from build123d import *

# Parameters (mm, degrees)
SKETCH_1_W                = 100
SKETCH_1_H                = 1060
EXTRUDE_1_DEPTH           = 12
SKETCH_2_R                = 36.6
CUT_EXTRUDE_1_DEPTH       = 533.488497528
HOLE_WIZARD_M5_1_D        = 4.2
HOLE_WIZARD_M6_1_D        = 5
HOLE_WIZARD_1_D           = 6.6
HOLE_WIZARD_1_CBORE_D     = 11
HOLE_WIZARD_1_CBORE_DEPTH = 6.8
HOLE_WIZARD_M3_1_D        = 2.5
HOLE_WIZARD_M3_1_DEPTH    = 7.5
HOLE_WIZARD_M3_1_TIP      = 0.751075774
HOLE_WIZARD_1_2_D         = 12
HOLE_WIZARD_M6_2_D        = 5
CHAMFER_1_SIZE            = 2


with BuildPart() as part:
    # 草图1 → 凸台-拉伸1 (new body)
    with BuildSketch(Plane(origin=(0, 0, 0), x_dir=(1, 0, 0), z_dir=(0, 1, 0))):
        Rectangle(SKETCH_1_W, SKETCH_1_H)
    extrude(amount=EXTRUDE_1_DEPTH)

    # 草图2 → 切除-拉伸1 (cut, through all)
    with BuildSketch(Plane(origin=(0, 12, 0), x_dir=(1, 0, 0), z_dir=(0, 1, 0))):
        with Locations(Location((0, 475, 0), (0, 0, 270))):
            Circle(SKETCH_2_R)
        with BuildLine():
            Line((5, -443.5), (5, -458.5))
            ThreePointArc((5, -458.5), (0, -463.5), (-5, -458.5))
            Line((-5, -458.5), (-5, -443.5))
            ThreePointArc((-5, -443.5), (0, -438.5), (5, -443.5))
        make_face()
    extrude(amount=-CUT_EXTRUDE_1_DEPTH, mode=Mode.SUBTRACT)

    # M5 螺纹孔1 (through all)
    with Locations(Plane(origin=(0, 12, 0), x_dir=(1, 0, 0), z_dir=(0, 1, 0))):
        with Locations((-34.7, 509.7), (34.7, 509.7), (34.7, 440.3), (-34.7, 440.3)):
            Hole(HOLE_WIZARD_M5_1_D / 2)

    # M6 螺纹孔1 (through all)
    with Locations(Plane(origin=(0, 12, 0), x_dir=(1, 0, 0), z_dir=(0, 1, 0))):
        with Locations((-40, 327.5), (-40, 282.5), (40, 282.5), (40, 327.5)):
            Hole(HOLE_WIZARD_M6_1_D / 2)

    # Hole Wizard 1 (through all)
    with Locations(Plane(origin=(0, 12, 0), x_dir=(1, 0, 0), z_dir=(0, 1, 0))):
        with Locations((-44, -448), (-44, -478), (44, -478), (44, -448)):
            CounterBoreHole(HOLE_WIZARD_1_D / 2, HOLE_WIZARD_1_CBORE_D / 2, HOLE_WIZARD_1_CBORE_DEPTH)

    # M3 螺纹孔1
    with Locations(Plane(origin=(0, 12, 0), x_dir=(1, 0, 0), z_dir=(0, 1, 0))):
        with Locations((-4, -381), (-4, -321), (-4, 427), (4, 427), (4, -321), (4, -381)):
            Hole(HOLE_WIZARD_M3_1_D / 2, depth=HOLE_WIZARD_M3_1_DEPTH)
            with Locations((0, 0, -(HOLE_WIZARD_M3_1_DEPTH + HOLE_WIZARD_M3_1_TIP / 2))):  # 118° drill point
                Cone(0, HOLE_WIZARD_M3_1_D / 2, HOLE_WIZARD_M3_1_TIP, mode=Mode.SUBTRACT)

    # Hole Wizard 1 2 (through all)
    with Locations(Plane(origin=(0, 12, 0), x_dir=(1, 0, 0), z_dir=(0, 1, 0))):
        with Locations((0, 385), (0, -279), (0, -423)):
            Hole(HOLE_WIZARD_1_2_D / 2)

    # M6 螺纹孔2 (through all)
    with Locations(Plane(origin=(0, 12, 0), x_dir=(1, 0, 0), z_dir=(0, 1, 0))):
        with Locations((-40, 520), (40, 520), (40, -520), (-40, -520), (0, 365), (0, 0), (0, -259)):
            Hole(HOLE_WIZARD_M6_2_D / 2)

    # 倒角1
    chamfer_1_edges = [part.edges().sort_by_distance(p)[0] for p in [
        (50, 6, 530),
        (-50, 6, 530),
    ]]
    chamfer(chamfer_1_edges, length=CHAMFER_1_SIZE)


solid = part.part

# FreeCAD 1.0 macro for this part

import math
import FreeCAD as App
import Part
import Sketcher

V = App.Vector
Q = App.Units.Quantity


def edges_at(feature, points):
    """Names of the edges that pass closest to the given points."""
    edges = feature.Shape.Edges
    near = lambda p: min(range(len(edges)), key=lambda i: edges[i].distToShape(Part.Vertex(*p))[0])
    return sorted({f"Edge{near(p) + 1}" for p in points})

doc = App.newDocument("Part")
body = doc.addObject("PartDesign::Body", "Body")

# Sketch on XZ plane
sketch1 = doc.addObject("Sketcher::SketchObject", "Sketch")
body.addObject(sketch1)
sketch1.AttachmentSupport = (doc.XZ_Plane, [""])
sketch1.MapMode = "FlatFace"
sketch1.addGeometry([
    Part.LineSegment(V(-50, -530, 0), V(-50, 530, 0)),
    Part.LineSegment(V(-50, 530, 0), V(50, 530, 0)),
    Part.LineSegment(V(50, 530, 0), V(50, -530, 0)),
    Part.LineSegment(V(50, -530, 0), V(-50, -530, 0)),
], False)
sketch1.addConstraint([
    Sketcher.Constraint("Coincident", 0, 2, 1, 1),
    Sketcher.Constraint("Coincident", 1, 2, 2, 1),
    Sketcher.Constraint("Coincident", 2, 2, 3, 1),
    Sketcher.Constraint("Coincident", 3, 2, 0, 1),
    Sketcher.Constraint("Vertical", 0),
    Sketcher.Constraint("Horizontal", 1),
    Sketcher.Constraint("Vertical", 2),
    Sketcher.Constraint("Horizontal", 3),
    Sketcher.Constraint("Symmetric", 0, 2, 2, 2, -1, 1),
    Sketcher.Constraint("DistanceX", 1, 1, 1, 2, Q("100 mm")),
    Sketcher.Constraint("DistanceY", 0, 1, 0, 2, Q("1060 mm")),
])
pad1 = doc.addObject("PartDesign::Pad", "Pad")
body.addObject(pad1)
pad1.Profile = sketch1
pad1.Length = 12
pad1.Reversed = True

# Sketch on XZ plane
sketch2 = doc.addObject("Sketcher::SketchObject", "Sketch001")
body.addObject(sketch2)
sketch2.AttachmentSupport = (doc.XZ_Plane, [""])
sketch2.MapMode = "FlatFace"
sketch2.AttachmentOffset = App.Placement(V(0, 0, -12), App.Rotation())
sketch2.addGeometry([
    Part.Circle(V(0, -475, 0), V(0, 0, 1), 37),  # 0
    Part.LineSegment(V(5, 458, 0), V(5, 444, 0)),  # 1
    Part.ArcOfCircle(Part.Circle(V(0, 444, 0), V(0, 0, 1), 5), math.radians(180), math.radians(360)),  # 2
    Part.LineSegment(V(-5, 444, 0), V(-5, 458, 0)),  # 3
    Part.ArcOfCircle(Part.Circle(V(0, 458, 0), V(0, 0, 1), 5), math.radians(0), math.radians(180)),  # 4
], False)
sketch2.addConstraint([
    Sketcher.Constraint("Tangent", 1, 2, 2, 2),
    Sketcher.Constraint("Tangent", 2, 1, 3, 1),
    Sketcher.Constraint("Tangent", 3, 2, 4, 2),
    Sketcher.Constraint("Tangent", 4, 1, 1, 1),
    Sketcher.Constraint("Vertical", 1),
    Sketcher.Constraint("Vertical", 3),
    Sketcher.Constraint("PointOnObject", 0, 3, -2),
    Sketcher.Constraint("PointOnObject", 2, 3, -2),
    Sketcher.Constraint("Radius", 2, Q("5 mm")),
    Sketcher.Constraint("Diameter", 0, Q("73.2 mm")),
    Sketcher.Constraint("DistanceY", 1, 2, 1, 1, Q("15 mm")),
    Sketcher.Constraint("DistanceY", 0, 3, -1, 1, Q("475 mm")),
    Sketcher.Constraint("DistanceY", -1, 1, 2, 3, Q("443.5 mm")),
])
pocket1 = doc.addObject("PartDesign::Pocket", "Pocket")
body.addObject(pocket1)
pocket1.Profile = sketch2
pocket1.Type = "ThroughAll"
pocket1.Reversed = True

# Sketch on XZ plane
sketch3 = doc.addObject("Sketcher::SketchObject", "Sketch002")
body.addObject(sketch3)
sketch3.AttachmentSupport = (doc.XZ_Plane, [""])
sketch3.MapMode = "FlatFace"
sketch3.AttachmentOffset = App.Placement(V(0, 0, -12), App.Rotation())
sketch3.addGeometry([
    Part.Circle(V(-34.7, -509.7, 0), V(0, 0, 1), 2.1),
    Part.Circle(V(34.7, -509.7, 0), V(0, 0, 1), 2.1),
    Part.Circle(V(34.7, -440.3, 0), V(0, 0, 1), 2.1),
    Part.Circle(V(-34.7, -440.3, 0), V(0, 0, 1), 2.1),
], False)
sketch3.addConstraint([
    Sketcher.Constraint("Equal", 0, 1),
    Sketcher.Constraint("Equal", 1, 2),
    Sketcher.Constraint("Equal", 2, 3),
    Sketcher.Constraint("Symmetric", 0, 3, 1, 3, -2),
    Sketcher.Constraint("Symmetric", 2, 3, 3, 3, -2),
    Sketcher.Constraint("Vertical", 1, 3, 2, 3),
    Sketcher.Constraint("Diameter", 0, Q("4.2 mm")),
    Sketcher.Constraint("DistanceX", 0, 3, -1, 1, Q("34.7 mm")),
    Sketcher.Constraint("DistanceY", 0, 3, -1, 1, Q("509.7 mm")),
    Sketcher.Constraint("DistanceY", 2, 3, -1, 1, Q("440.3 mm")),
])
doc.recompute()
hole = doc.addObject("PartDesign::Hole", "Hole")
body.addObject(hole)
hole.Profile = sketch3
hole.ThreadType = "None"
hole.Diameter = 4.2
hole.DepthType = "ThroughAll"
hole.Reversed = True

# Sketch on XZ plane
sketch4 = doc.addObject("Sketcher::SketchObject", "Sketch003")
body.addObject(sketch4)
sketch4.AttachmentSupport = (doc.XZ_Plane, [""])
sketch4.MapMode = "FlatFace"
sketch4.AttachmentOffset = App.Placement(V(0, 0, -12), App.Rotation())
sketch4.addGeometry([
    Part.Circle(V(-40, -327.5, 0), V(0, 0, 1), 2.5),
    Part.Circle(V(-40, -282.5, 0), V(0, 0, 1), 2.5),
    Part.Circle(V(40, -282.5, 0), V(0, 0, 1), 2.5),
    Part.Circle(V(40, -327.5, 0), V(0, 0, 1), 2.5),
], False)
sketch4.addConstraint([
    Sketcher.Constraint("Equal", 0, 1),
    Sketcher.Constraint("Equal", 1, 2),
    Sketcher.Constraint("Equal", 2, 3),
    Sketcher.Constraint("Symmetric", 1, 3, 2, 3, -2),
    Sketcher.Constraint("Symmetric", 0, 3, 3, 3, -2),
    Sketcher.Constraint("Vertical", 0, 3, 1, 3),
    Sketcher.Constraint("Diameter", 0, Q("5 mm")),
    Sketcher.Constraint("DistanceX", 0, 3, -1, 1, Q("40 mm")),
    Sketcher.Constraint("DistanceY", 0, 3, 1, 3, Q("45 mm")),
    Sketcher.Constraint("DistanceY", 0, 3, -1, 1, Q("327.5 mm")),
])
doc.recompute()
hole2 = doc.addObject("PartDesign::Hole", "Hole001")
body.addObject(hole2)
hole2.Profile = sketch4
hole2.ThreadType = "None"
hole2.Diameter = 5
hole2.DepthType = "ThroughAll"
hole2.Reversed = True

# Sketch on XZ plane
sketch5 = doc.addObject("Sketcher::SketchObject", "Sketch004")
body.addObject(sketch5)
sketch5.AttachmentSupport = (doc.XZ_Plane, [""])
sketch5.MapMode = "FlatFace"
sketch5.AttachmentOffset = App.Placement(V(0, 0, -12), App.Rotation())
sketch5.addGeometry([
    Part.Circle(V(-44, 448, 0), V(0, 0, 1), 3.3),
    Part.Circle(V(-44, 478, 0), V(0, 0, 1), 3.3),
    Part.Circle(V(44, 478, 0), V(0, 0, 1), 3.3),
    Part.Circle(V(44, 448, 0), V(0, 0, 1), 3.3),
], False)
sketch5.addConstraint([
    Sketcher.Constraint("Equal", 0, 1),
    Sketcher.Constraint("Equal", 1, 2),
    Sketcher.Constraint("Equal", 2, 3),
    Sketcher.Constraint("Symmetric", 1, 3, 2, 3, -2),
    Sketcher.Constraint("Symmetric", 0, 3, 3, 3, -2),
    Sketcher.Constraint("Vertical", 0, 3, 1, 3),
    Sketcher.Constraint("Diameter", 0, Q("6.6 mm")),
    Sketcher.Constraint("DistanceX", 0, 3, -1, 1, Q("44 mm")),
    Sketcher.Constraint("DistanceY", -1, 1, 0, 3, Q("448 mm")),
    Sketcher.Constraint("DistanceY", -1, 1, 1, 3, Q("478 mm")),
])
doc.recompute()
hole3 = doc.addObject("PartDesign::Hole", "Hole002")
body.addObject(hole3)
hole3.Profile = sketch5
hole3.ThreadType = "None"
hole3.Diameter = 6.6
hole3.DepthType = "ThroughAll"
hole3.HoleCutType = "Counterbore"
hole3.HoleCutDiameter = 11
hole3.HoleCutDepth = 6.8
hole3.Reversed = True

# Sketch on XZ plane
sketch6 = doc.addObject("Sketcher::SketchObject", "Sketch005")
body.addObject(sketch6)
sketch6.AttachmentSupport = (doc.XZ_Plane, [""])
sketch6.MapMode = "FlatFace"
sketch6.AttachmentOffset = App.Placement(V(0, 0, -12), App.Rotation())
sketch6.addGeometry([
    Part.Circle(V(-4, 381, 0), V(0, 0, 1), 1.2),  # 0
    Part.Circle(V(-4, 321, 0), V(0, 0, 1), 1.2),  # 1
    Part.Circle(V(-4, -427, 0), V(0, 0, 1), 1.2),  # 2
    Part.Circle(V(4, -427, 0), V(0, 0, 1), 1.2),  # 3
    Part.Circle(V(4, 321, 0), V(0, 0, 1), 1.2),  # 4
    Part.Circle(V(4, 381, 0), V(0, 0, 1), 1.2),  # 5
], False)
sketch6.addConstraint([
    Sketcher.Constraint("Equal", 0, 1),
    Sketcher.Constraint("Equal", 1, 2),
    Sketcher.Constraint("Equal", 2, 3),
    Sketcher.Constraint("Equal", 3, 4),
    Sketcher.Constraint("Equal", 4, 5),
    Sketcher.Constraint("Symmetric", 2, 3, 3, 3, -2),
    Sketcher.Constraint("Symmetric", 1, 3, 4, 3, -2),
    Sketcher.Constraint("Symmetric", 0, 3, 5, 3, -2),
    Sketcher.Constraint("Vertical", 0, 3, 1, 3),
    Sketcher.Constraint("Vertical", 1, 3, 2, 3),
    Sketcher.Constraint("Diameter", 0, Q("2.5 mm")),
    Sketcher.Constraint("DistanceX", 0, 3, -1, 1, Q("4 mm")),
    Sketcher.Constraint("DistanceY", -1, 1, 0, 3, Q("381 mm")),
    Sketcher.Constraint("DistanceY", -1, 1, 1, 3, Q("321 mm")),
    Sketcher.Constraint("DistanceY", 2, 3, -1, 1, Q("427 mm")),
])
doc.recompute()
hole4 = doc.addObject("PartDesign::Hole", "Hole003")
body.addObject(hole4)
hole4.Profile = sketch6
hole4.ThreadType = "None"
hole4.Diameter = 2.5
hole4.DepthType = "Dimension"
hole4.Depth = 7.5
hole4.DrillPoint = "Angled"
hole4.DrillPointAngle = 118
hole4.Reversed = True

# Sketch on XZ plane
sketch7 = doc.addObject("Sketcher::SketchObject", "Sketch006")
body.addObject(sketch7)
sketch7.AttachmentSupport = (doc.XZ_Plane, [""])
sketch7.MapMode = "FlatFace"
sketch7.AttachmentOffset = App.Placement(V(0, 0, -12), App.Rotation())
sketch7.addGeometry([
    Part.Circle(V(0, -385, 0), V(0, 0, 1), 6),
    Part.Circle(V(0, 279, 0), V(0, 0, 1), 6),
    Part.Circle(V(0, 423, 0), V(0, 0, 1), 6),
], False)
sketch7.addConstraint([
    Sketcher.Constraint("Equal", 0, 1),
    Sketcher.Constraint("Equal", 1, 2),
    Sketcher.Constraint("PointOnObject", 0, 3, -2),
    Sketcher.Constraint("PointOnObject", 1, 3, -2),
    Sketcher.Constraint("PointOnObject", 2, 3, -2),
    Sketcher.Constraint("Diameter", 0, Q("12 mm")),
    Sketcher.Constraint("DistanceY", 0, 3, -1, 1, Q("385 mm")),
    Sketcher.Constraint("DistanceY", -1, 1, 1, 3, Q("279 mm")),
    Sketcher.Constraint("DistanceY", -1, 1, 2, 3, Q("423 mm")),
])
doc.recompute()
hole5 = doc.addObject("PartDesign::Hole", "Hole004")
body.addObject(hole5)
hole5.Profile = sketch7
hole5.ThreadType = "None"
hole5.Diameter = 12
hole5.DepthType = "ThroughAll"
hole5.Reversed = True

# Sketch on XZ plane
sketch8 = doc.addObject("Sketcher::SketchObject", "Sketch007")
body.addObject(sketch8)
sketch8.AttachmentSupport = (doc.XZ_Plane, [""])
sketch8.MapMode = "FlatFace"
sketch8.AttachmentOffset = App.Placement(V(0, 0, -12), App.Rotation())
sketch8.addGeometry([
    Part.Circle(V(-40, -520, 0), V(0, 0, 1), 2.5),  # 0
    Part.Circle(V(40, -520, 0), V(0, 0, 1), 2.5),  # 1
    Part.Circle(V(40, 520, 0), V(0, 0, 1), 2.5),  # 2
    Part.Circle(V(-40, 520, 0), V(0, 0, 1), 2.5),  # 3
    Part.Circle(V(0, -365, 0), V(0, 0, 1), 2.5),  # 4
    Part.Circle(V(0, 0, 0), V(0, 0, 1), 2.5),  # 5
    Part.Circle(V(0, 259, 0), V(0, 0, 1), 2.5),  # 6
], False)
sketch8.addConstraint([
    Sketcher.Constraint("Coincident", 5, 3, -1, 1),
    Sketcher.Constraint("Equal", 0, 1),
    Sketcher.Constraint("Equal", 1, 2),
    Sketcher.Constraint("Equal", 2, 3),
    Sketcher.Constraint("Equal", 3, 4),
    Sketcher.Constraint("Equal", 4, 5),
    Sketcher.Constraint("Equal", 5, 6),
    Sketcher.Constraint("Symmetric", 0, 3, 2, 3, -1, 1),
    Sketcher.Constraint("Symmetric", 1, 3, 3, 3, -1, 1),
    Sketcher.Constraint("Symmetric", 0, 3, 1, 3, -2),
    Sketcher.Constraint("PointOnObject", 4, 3, -2),
    Sketcher.Constraint("PointOnObject", 6, 3, -2),
    Sketcher.Constraint("Diameter", 0, Q("5 mm")),
    Sketcher.Constraint("DistanceX", 0, 3, -1, 1, Q("40 mm")),
    Sketcher.Constraint("DistanceY", 0, 3, -1, 1, Q("520 mm")),
    Sketcher.Constraint("DistanceY", 4, 3, -1, 1, Q("365 mm")),
    Sketcher.Constraint("DistanceY", -1, 1, 6, 3, Q("259 mm")),
])
doc.recompute()
hole6 = doc.addObject("PartDesign::Hole", "Hole005")
body.addObject(hole6)
hole6.Profile = sketch8
hole6.ThreadType = "None"
hole6.Diameter = 5
hole6.DepthType = "ThroughAll"
hole6.Reversed = True
doc.recompute()

chamfer = doc.addObject("PartDesign::Chamfer", "Chamfer")
body.addObject(chamfer)
chamfer.Base = (hole6, edges_at(hole6, [(50, 6, 530), (-50, 6, 530)]))
chamfer.Size = 2

doc.recompute()
